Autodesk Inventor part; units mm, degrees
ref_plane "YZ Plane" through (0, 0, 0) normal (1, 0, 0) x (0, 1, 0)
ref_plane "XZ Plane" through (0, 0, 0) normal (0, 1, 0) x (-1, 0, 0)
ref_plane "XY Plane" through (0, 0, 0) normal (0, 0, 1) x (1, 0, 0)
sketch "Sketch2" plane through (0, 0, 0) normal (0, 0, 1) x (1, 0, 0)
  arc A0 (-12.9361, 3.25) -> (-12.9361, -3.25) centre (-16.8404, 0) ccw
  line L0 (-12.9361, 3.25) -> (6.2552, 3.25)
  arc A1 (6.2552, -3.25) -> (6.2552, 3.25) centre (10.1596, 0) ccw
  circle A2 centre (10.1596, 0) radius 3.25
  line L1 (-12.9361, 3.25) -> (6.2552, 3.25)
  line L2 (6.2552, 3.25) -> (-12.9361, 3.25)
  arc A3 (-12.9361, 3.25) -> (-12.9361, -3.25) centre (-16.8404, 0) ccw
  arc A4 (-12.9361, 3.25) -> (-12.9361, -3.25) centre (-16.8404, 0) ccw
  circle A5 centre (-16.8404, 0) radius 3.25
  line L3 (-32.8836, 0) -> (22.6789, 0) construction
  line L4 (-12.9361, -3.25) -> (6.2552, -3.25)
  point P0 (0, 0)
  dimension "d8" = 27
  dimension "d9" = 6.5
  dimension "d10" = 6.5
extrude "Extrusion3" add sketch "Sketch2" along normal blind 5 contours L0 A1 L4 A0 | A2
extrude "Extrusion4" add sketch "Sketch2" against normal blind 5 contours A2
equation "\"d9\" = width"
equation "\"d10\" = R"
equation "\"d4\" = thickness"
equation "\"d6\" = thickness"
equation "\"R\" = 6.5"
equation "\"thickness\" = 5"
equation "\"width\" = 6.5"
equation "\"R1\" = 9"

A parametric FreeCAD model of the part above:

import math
import FreeCAD as App
import Part
import Sketcher
Q = App.Units.Quantity

doc = App.newDocument("Part")
body = doc.addObject("PartDesign::Body", "Body")

sketch1 = body.newObject("Sketcher::SketchObject", "Sketch")
sketch1.AttachmentSupport = (doc.getObject("XY_Plane"), [""])
sketch1.MapMode = "FlatFace"
sketch1.addGeometry([
    Part.LineSegment(App.Vector(6.3, 3.2, 0), App.Vector(-12.9, 3.2, 0)),
    Part.ArcOfCircle(Part.Circle(App.Vector(-16.8, 0, 0), App.Vector(0, 0, 1), 5.1), math.radians(40), math.radians(320)),
    Part.LineSegment(App.Vector(-12.9, -3.2, 0), App.Vector(6.3, -3.2, 0)),
    Part.ArcOfCircle(Part.Circle(App.Vector(10.2, 0, 0), App.Vector(0, 0, 1), 5.1), math.radians(-140), math.radians(140)),
    Part.Circle(App.Vector(-16.8, 0, 0), App.Vector(0, 0, 1), 3.2),
], False)
sketch1.addConstraint([
    Sketcher.Constraint("Coincident", 0, 2, 1, 1),
    Sketcher.Constraint("Coincident", 1, 2, 2, 1),
    Sketcher.Constraint("Coincident", 2, 2, 3, 1),
    Sketcher.Constraint("Coincident", 3, 2, 0, 1),
    Sketcher.Constraint("Horizontal", 0),
    Sketcher.Constraint("Horizontal", 2),
    Sketcher.Constraint("Coincident", 4, 3, 1, 3),
    Sketcher.Constraint("Equal", 1, 3),
    Sketcher.Constraint("Symmetric", 0, 2, 1, 2, -1),
    Sketcher.Constraint("PointOnObject", 3, 3, -1),
    Sketcher.Constraint("Diameter", 4, Q("0.2559 in")),
    Sketcher.Constraint("Radius", 1, Q("0.2 in")),
    Sketcher.Constraint("DistanceX", 1, 3, 3, 3, Q("1.063 in")),
    Sketcher.Constraint("DistanceY", 1, 2, 0, 2, Q("0.2559 in")),
    Sketcher.Constraint("DistanceX", 1, 3, -1, 1, Q("0.663 in")),
])
pad1 = body.newObject("PartDesign::Pad", "Pad")
pad1.Profile = sketch1
pad1.Length = 5

sketch2 = body.newObject("Sketcher::SketchObject", "Sketch001")
sketch2.AttachmentSupport = (doc.getObject("XY_Plane"), [""])
sketch2.MapMode = "FlatFace"
sketch2.addGeometry(Part.Circle(App.Vector(10.2, 0, 0), App.Vector(0, 0, 1), 3.2), False)
sketch2.addConstraint([
    Sketcher.Constraint("PointOnObject", 0, 3, -1),
    Sketcher.Constraint("Diameter", 0, Q("0.2559 in")),
    Sketcher.Constraint("DistanceX", -1, 1, 0, 3, Q("10.1596 mm")),
])
pad2 = body.newObject("PartDesign::Pad", "Pad001")
pad2.Profile = sketch2
pad2.Length = 5
pad2.Reversed = True

doc.recompute()
